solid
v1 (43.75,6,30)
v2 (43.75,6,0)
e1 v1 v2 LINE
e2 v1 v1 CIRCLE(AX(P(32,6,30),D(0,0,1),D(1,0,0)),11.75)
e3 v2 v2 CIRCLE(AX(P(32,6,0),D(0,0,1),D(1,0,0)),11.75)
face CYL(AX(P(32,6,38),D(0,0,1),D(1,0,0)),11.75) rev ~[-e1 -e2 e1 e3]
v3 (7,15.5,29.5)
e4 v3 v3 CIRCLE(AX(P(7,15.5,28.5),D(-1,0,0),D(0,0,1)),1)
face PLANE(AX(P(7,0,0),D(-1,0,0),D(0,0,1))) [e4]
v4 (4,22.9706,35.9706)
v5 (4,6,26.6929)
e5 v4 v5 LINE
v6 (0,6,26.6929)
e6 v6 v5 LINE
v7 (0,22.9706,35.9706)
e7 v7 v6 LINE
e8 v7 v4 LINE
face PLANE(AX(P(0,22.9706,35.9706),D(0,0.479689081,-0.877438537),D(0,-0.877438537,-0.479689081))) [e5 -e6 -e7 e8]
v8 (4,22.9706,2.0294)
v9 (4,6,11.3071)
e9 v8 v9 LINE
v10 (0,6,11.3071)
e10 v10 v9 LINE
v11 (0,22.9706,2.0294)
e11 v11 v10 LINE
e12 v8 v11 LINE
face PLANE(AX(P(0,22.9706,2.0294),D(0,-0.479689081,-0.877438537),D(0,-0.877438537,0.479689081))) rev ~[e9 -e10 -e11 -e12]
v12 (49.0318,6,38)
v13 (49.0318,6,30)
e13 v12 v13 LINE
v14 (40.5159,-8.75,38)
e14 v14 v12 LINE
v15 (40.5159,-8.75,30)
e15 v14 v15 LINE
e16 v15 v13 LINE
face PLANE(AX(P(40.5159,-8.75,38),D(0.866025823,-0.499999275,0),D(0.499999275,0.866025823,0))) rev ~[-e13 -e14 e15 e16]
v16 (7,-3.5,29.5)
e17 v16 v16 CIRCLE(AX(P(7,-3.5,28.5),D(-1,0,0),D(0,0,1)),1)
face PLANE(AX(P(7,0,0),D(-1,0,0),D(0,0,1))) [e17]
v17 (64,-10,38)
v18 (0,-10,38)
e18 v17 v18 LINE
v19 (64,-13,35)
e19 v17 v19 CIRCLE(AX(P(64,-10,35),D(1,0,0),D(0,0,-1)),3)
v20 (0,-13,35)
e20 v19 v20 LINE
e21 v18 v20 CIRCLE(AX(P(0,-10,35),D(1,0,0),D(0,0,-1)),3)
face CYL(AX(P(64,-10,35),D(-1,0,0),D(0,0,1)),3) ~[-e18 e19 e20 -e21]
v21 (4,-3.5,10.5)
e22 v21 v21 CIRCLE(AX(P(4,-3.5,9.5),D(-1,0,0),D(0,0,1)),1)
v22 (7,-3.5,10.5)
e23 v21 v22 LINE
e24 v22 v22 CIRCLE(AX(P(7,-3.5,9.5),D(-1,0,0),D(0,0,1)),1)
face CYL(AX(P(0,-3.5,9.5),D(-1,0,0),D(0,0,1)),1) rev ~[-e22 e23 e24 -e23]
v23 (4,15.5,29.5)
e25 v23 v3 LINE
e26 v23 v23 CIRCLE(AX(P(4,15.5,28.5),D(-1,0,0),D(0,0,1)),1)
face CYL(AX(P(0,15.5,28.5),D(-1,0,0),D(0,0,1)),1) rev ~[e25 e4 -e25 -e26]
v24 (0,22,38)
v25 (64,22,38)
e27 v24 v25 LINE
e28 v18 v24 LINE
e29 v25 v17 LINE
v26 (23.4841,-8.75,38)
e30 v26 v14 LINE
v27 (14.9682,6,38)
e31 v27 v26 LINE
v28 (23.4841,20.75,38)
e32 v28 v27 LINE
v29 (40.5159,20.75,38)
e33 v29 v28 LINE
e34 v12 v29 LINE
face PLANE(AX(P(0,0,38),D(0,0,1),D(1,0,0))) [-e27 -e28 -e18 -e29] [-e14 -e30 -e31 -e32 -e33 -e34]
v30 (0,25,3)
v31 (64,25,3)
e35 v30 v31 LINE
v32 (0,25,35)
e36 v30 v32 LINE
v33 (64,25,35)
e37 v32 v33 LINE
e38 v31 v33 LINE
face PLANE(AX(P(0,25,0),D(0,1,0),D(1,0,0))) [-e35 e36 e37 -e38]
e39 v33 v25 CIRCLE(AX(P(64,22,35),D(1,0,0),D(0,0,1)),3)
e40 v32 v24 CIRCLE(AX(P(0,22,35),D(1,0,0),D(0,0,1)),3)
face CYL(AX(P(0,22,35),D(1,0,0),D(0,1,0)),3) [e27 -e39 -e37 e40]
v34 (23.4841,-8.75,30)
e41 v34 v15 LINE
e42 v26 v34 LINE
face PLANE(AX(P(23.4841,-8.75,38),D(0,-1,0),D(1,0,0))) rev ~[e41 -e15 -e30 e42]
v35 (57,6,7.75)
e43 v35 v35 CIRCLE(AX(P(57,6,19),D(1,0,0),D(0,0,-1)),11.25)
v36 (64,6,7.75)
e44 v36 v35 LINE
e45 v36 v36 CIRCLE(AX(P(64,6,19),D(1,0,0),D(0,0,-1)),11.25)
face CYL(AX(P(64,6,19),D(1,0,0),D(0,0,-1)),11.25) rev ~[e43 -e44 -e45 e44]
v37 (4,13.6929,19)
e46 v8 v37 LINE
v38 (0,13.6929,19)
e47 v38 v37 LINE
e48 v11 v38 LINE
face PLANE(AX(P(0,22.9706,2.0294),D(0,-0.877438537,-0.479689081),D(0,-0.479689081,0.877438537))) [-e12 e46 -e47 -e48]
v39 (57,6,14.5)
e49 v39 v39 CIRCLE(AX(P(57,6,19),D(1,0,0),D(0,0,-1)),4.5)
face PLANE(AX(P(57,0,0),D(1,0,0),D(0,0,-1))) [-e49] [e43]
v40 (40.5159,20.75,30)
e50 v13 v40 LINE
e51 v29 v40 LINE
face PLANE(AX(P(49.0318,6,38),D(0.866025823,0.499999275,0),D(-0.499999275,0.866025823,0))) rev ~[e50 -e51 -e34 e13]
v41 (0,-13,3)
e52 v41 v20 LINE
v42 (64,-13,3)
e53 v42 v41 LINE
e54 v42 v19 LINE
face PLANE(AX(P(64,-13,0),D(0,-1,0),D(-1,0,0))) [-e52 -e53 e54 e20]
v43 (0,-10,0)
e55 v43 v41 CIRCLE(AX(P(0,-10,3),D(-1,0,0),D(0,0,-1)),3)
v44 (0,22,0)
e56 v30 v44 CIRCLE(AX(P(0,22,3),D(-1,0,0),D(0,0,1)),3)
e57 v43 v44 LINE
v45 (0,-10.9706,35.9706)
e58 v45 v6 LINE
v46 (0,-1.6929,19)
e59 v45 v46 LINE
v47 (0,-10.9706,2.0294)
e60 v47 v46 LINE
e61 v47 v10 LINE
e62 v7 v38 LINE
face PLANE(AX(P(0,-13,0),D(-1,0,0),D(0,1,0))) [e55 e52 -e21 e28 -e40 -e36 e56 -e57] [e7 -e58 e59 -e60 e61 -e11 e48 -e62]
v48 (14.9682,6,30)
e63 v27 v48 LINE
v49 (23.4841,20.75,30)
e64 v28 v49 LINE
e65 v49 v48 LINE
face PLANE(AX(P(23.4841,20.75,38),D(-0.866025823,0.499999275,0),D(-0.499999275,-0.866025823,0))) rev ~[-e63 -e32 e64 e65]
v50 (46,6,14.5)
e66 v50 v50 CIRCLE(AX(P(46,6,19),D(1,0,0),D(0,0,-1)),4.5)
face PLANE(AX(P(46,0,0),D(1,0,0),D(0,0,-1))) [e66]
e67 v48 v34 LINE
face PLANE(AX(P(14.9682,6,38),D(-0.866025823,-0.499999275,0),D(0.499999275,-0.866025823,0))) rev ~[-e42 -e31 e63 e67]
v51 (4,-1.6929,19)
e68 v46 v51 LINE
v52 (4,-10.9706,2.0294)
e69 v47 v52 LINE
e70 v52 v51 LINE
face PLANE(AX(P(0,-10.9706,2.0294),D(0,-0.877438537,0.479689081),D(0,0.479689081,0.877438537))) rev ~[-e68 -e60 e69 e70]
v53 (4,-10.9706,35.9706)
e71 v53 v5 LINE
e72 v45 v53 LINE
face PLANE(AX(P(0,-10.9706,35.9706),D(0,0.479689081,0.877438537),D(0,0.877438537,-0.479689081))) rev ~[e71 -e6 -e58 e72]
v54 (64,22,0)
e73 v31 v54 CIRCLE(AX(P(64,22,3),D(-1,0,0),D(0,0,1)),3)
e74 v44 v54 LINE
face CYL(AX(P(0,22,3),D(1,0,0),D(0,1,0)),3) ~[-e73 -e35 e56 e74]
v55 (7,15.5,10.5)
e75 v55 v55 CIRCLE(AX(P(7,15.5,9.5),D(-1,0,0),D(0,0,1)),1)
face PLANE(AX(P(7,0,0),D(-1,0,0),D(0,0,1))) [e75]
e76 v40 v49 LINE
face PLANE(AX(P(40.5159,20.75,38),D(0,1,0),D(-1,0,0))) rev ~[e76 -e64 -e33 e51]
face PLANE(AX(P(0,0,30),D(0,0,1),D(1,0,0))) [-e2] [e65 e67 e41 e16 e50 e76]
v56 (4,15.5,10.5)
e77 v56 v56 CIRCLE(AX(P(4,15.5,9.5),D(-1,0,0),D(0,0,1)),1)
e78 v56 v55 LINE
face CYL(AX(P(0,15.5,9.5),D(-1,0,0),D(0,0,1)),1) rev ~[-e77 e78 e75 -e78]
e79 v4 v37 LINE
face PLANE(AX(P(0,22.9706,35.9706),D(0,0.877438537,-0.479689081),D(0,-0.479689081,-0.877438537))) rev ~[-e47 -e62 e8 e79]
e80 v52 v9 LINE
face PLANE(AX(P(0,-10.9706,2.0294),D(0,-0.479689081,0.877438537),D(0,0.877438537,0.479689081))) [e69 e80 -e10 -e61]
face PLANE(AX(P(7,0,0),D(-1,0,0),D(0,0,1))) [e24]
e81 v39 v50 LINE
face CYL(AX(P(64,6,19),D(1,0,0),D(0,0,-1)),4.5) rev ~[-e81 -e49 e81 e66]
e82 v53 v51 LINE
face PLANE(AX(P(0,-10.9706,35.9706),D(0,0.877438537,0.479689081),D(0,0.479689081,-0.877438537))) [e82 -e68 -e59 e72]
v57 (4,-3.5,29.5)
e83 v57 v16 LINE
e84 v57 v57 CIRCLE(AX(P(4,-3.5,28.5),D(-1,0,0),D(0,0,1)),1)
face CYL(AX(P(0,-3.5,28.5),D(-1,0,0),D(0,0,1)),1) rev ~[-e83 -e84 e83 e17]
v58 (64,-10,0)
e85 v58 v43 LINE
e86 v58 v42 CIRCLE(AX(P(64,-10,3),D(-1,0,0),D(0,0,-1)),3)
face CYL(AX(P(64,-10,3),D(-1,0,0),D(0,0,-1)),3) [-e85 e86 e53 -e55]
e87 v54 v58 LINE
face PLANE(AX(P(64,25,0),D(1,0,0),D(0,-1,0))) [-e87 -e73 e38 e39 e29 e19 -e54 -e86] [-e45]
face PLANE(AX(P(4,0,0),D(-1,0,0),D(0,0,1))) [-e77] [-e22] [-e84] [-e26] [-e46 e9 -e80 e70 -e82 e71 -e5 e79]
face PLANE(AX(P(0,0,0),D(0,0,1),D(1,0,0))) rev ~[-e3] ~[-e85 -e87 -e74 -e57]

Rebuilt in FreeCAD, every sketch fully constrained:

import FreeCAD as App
import Part
import Sketcher
from FreeCAD import Vector
Q = App.Units.Quantity


def edges_at(feature, points):
    """Names of the edges that pass closest to the given points."""
    edges = feature.Shape.Edges
    near = lambda p: min(range(len(edges)), key=lambda i: edges[i].distToShape(Part.Vertex(*p))[0])
    return sorted({f"Edge{near(p) + 1}" for p in points})

doc = App.newDocument("Part")
body = doc.addObject("PartDesign::Body", "Body")

# Sketch on XY plane
sketch1 = doc.addObject("Sketcher::SketchObject", "Sketch")
body.addObject(sketch1)
sketch1.AttachmentSupport = (doc.XY_Plane, [""])
sketch1.MapMode = "FlatFace"
sketch1.addGeometry(Part.LineSegment(Vector(64, 25, 0), Vector(0, 25, 0)), False)
sketch1.addGeometry(Part.LineSegment(Vector(0, 25, 0), Vector(0, -13, 0)), False)
sketch1.addGeometry(Part.LineSegment(Vector(0, -13, 0), Vector(64, -13, 0)), False)
sketch1.addGeometry(Part.LineSegment(Vector(64, -13, 0), Vector(64, 25, 0)), False)
sketch1.addConstraint(Sketcher.Constraint("Coincident", 0, 2, 1, 1))
sketch1.addConstraint(Sketcher.Constraint("Coincident", 1, 2, 2, 1))
sketch1.addConstraint(Sketcher.Constraint("Coincident", 2, 2, 3, 1))
sketch1.addConstraint(Sketcher.Constraint("Coincident", 3, 2, 0, 1))
sketch1.addConstraint(Sketcher.Constraint("Horizontal", 0))
sketch1.addConstraint(Sketcher.Constraint("Vertical", 1))
sketch1.addConstraint(Sketcher.Constraint("Horizontal", 2))
sketch1.addConstraint(Sketcher.Constraint("Vertical", 3))
sketch1.addConstraint(Sketcher.Constraint("PointOnObject", 0, 2, -2))
sketch1.addConstraint(Sketcher.Constraint("DistanceX", 0, 2, 0, 1, Q("64 mm")))
sketch1.addConstraint(Sketcher.Constraint("DistanceY", 1, 2, 1, 1, Q("38 mm")))
sketch1.addConstraint(Sketcher.Constraint("DistanceY", -1, 1, 0, 2, Q("25 mm")))
pad1 = doc.addObject("PartDesign::Pad", "Pad")
body.addObject(pad1)
pad1.Profile = sketch1
pad1.Length = 38

# Sketch on XY plane
sketch2 = doc.addObject("Sketcher::SketchObject", "Sketch001")
body.addObject(sketch2)
sketch2.AttachmentSupport = (doc.XY_Plane, [""])
sketch2.MapMode = "FlatFace"
sketch2.AttachmentOffset = App.Placement(Vector(0, 0, 38), App.Rotation())
sketch2.addGeometry(Part.LineSegment(Vector(49, 6, 0), Vector(41, 21, 0)), False)
sketch2.addGeometry(Part.LineSegment(Vector(41, 21, 0), Vector(23, 21, 0)), False)
sketch2.addGeometry(Part.LineSegment(Vector(23, 21, 0), Vector(15, 6, 0)), False)
sketch2.addGeometry(Part.LineSegment(Vector(15, 6, 0), Vector(23, -9, 0)), False)
sketch2.addGeometry(Part.LineSegment(Vector(23, -9, 0), Vector(41, -9, 0)), False)
sketch2.addGeometry(Part.LineSegment(Vector(41, -9, 0), Vector(49, 6, 0)), False)
sketch2.addConstraint(Sketcher.Constraint("Coincident", 0, 2, 1, 1))
sketch2.addConstraint(Sketcher.Constraint("Coincident", 1, 2, 2, 1))
sketch2.addConstraint(Sketcher.Constraint("Coincident", 2, 2, 3, 1))
sketch2.addConstraint(Sketcher.Constraint("Coincident", 3, 2, 4, 1))
sketch2.addConstraint(Sketcher.Constraint("Coincident", 4, 2, 5, 1))
sketch2.addConstraint(Sketcher.Constraint("Coincident", 5, 2, 0, 1))
sketch2.addConstraint(Sketcher.Constraint("Horizontal", 1))
sketch2.addConstraint(Sketcher.Constraint("Horizontal", 4))
sketch2.addConstraint(Sketcher.Constraint("Parallel", 0, 3))
sketch2.addConstraint(Sketcher.Constraint("Parallel", 2, 5))
sketch2.addConstraint(Sketcher.Constraint("Horizontal", 2, 2, 5, 2))
sketch2.addConstraint(Sketcher.Constraint("Vertical", 1, 2, 3, 2))
sketch2.addConstraint(Sketcher.Constraint("Vertical", 0, 2, 4, 2))
sketch2.addConstraint(Sketcher.Constraint("Angle", 0, Q("120 deg")))
sketch2.addConstraint(Sketcher.Constraint("DistanceY", 2, 2, 1, 2, Q("14.75 mm")))
sketch2.addConstraint(Sketcher.Constraint("DistanceY", -1, 1, 2, 2, Q("6 mm")))
sketch2.addConstraint(Sketcher.Constraint("DistanceX", 1, 2, 1, 1, Q("17.0318 mm")))
sketch2.addConstraint(Sketcher.Constraint("DistanceX", -1, 1, 0, 2, Q("40.516 mm")))
pocket1 = doc.addObject("PartDesign::Pocket", "Pocket")
body.addObject(pocket1)
pocket1.Profile = sketch2
pocket1.Length = 8

# Sketch on XY plane
sketch3 = doc.addObject("Sketcher::SketchObject", "Sketch002")
body.addObject(sketch3)
sketch3.AttachmentSupport = (doc.XY_Plane, [""])
sketch3.MapMode = "FlatFace"
sketch3.AttachmentOffset = App.Placement(Vector(0, 0, 38), App.Rotation())
sketch3.addGeometry(Part.Circle(Vector(32, 6, 0), Vector(0, 0, 1), 12), False)
sketch3.addConstraint(Sketcher.Constraint("Diameter", 0, Q("23.5 mm")))
sketch3.addConstraint(Sketcher.Constraint("DistanceX", -1, 1, 0, 3, Q("32 mm")))
sketch3.addConstraint(Sketcher.Constraint("DistanceY", -1, 1, 0, 3, Q("6 mm")))
pocket2 = doc.addObject("PartDesign::Pocket", "Pocket001")
body.addObject(pocket2)
pocket2.Profile = sketch3
pocket2.Length = 52

# Sketch on YZ plane
sketch4 = doc.addObject("Sketcher::SketchObject", "Sketch003")
body.addObject(sketch4)
sketch4.AttachmentSupport = (doc.YZ_Plane, [""])
sketch4.MapMode = "FlatFace"
sketch4.addGeometry(Part.LineSegment(Vector(14, 19, 0), Vector(23, 2, 0)), False)
sketch4.addGeometry(Part.LineSegment(Vector(23, 2, 0), Vector(6, 11, 0)), False)
sketch4.addGeometry(Part.LineSegment(Vector(6, 11, 0), Vector(-11, 2, 0)), False)
sketch4.addGeometry(Part.LineSegment(Vector(-11, 2, 0), Vector(-2, 19, 0)), False)
sketch4.addGeometry(Part.LineSegment(Vector(-2, 19, 0), Vector(-11, 36, 0)), False)
sketch4.addGeometry(Part.LineSegment(Vector(-11, 36, 0), Vector(6, 27, 0)), False)
sketch4.addGeometry(Part.LineSegment(Vector(6, 27, 0), Vector(23, 36, 0)), False)
sketch4.addGeometry(Part.LineSegment(Vector(23, 36, 0), Vector(14, 19, 0)), False)
sketch4.addConstraint(Sketcher.Constraint("Coincident", 0, 2, 1, 1))
sketch4.addConstraint(Sketcher.Constraint("Coincident", 1, 2, 2, 1))
sketch4.addConstraint(Sketcher.Constraint("Coincident", 2, 2, 3, 1))
sketch4.addConstraint(Sketcher.Constraint("Coincident", 3, 2, 4, 1))
sketch4.addConstraint(Sketcher.Constraint("Coincident", 4, 2, 5, 1))
sketch4.addConstraint(Sketcher.Constraint("Coincident", 5, 2, 6, 1))
sketch4.addConstraint(Sketcher.Constraint("Coincident", 6, 2, 7, 1))
sketch4.addConstraint(Sketcher.Constraint("Coincident", 7, 2, 0, 1))
sketch4.addConstraint(Sketcher.Constraint("Perpendicular", 0, 2))
sketch4.addConstraint(Sketcher.Constraint("Perpendicular", 1, 3))
sketch4.addConstraint(Sketcher.Constraint("Perpendicular", 2, 4))
sketch4.addConstraint(Sketcher.Constraint("Perpendicular", 3, 5))
sketch4.addConstraint(Sketcher.Constraint("Perpendicular", 4, 6))
sketch4.addConstraint(Sketcher.Constraint("Perpendicular", 5, 7))
sketch4.addConstraint(Sketcher.Constraint("Horizontal", 0, 2, 2, 2))
sketch4.addConstraint(Sketcher.Constraint("Horizontal", 4, 2, 6, 2))
sketch4.addConstraint(Sketcher.Constraint("Horizontal", 3, 2, 7, 2))
sketch4.addConstraint(Sketcher.Constraint("Vertical", 2, 2, 4, 2))
sketch4.addConstraint(Sketcher.Constraint("Vertical", 1, 2, 5, 2))
sketch4.addConstraint(Sketcher.Constraint("Equal", 0, 1))
sketch4.addConstraint(Sketcher.Constraint("DistanceY", -1, 1, 3, 2, Q("19 mm")))
sketch4.addConstraint(Sketcher.Constraint("DistanceX", -1, 1, 1, 2, Q("6 mm")))
sketch4.addConstraint(Sketcher.Constraint("Distance", 0, Q("19.341 mm")))
sketch4.addConstraint(Sketcher.Constraint("DistanceY", -1, 1, 1, 2, Q("11.307 mm")))
pocket3 = doc.addObject("PartDesign::Pocket", "Pocket002")
body.addObject(pocket3)
pocket3.Profile = sketch4
pocket3.Length = 3
pocket3.Reversed = True
doc.recompute()

fillet = doc.addObject("PartDesign::Fillet", "Fillet")
body.addObject(fillet)
fillet.Base = (pocket3, edges_at(pocket3, [(32, 25, 0), (32, -13, 0)]))
fillet.Radius = 3
doc.recompute()

fillet2 = doc.addObject("PartDesign::Fillet", "Fillet001")
body.addObject(fillet2)
fillet2.Base = (fillet, edges_at(fillet, [(32, 25, 38), (32, -13, 38)]))
fillet2.Radius = 3

# Sketch on YZ plane
sketch5 = doc.addObject("Sketcher::SketchObject", "Sketch004")
body.addObject(sketch5)
sketch5.AttachmentSupport = (doc.YZ_Plane, [""])
sketch5.MapMode = "FlatFace"
sketch5.AttachmentOffset = App.Placement(Vector(0, 0, 64), App.Rotation())
sketch5.addGeometry(Part.Circle(Vector(6, 19, 0), Vector(0, 0, 1), 4.5), False)
sketch5.addConstraint(Sketcher.Constraint("Diameter", 0, Q("9 mm")))
sketch5.addConstraint(Sketcher.Constraint("DistanceX", -1, 1, 0, 3, Q("6 mm")))
sketch5.addConstraint(Sketcher.Constraint("DistanceY", -1, 1, 0, 3, Q("19 mm")))
pocket4 = doc.addObject("PartDesign::Pocket", "Pocket003")
body.addObject(pocket4)
pocket4.Profile = sketch5
pocket4.Length = 18

# Sketch on YZ plane
sketch6 = doc.addObject("Sketcher::SketchObject", "Sketch005")
body.addObject(sketch6)
sketch6.AttachmentSupport = (doc.YZ_Plane, [""])
sketch6.MapMode = "FlatFace"
sketch6.AttachmentOffset = App.Placement(Vector(0, 0, 64), App.Rotation())
sketch6.addGeometry(Part.Circle(Vector(6, 19, 0), Vector(0, 0, 1), 11.2), False)
sketch6.addGeometry(Part.Circle(Vector(6, 19, 0), Vector(0, 0, 1), 4.5), False)
sketch6.addConstraint(Sketcher.Constraint("Coincident", 1, 3, 0, 3))
sketch6.addConstraint(Sketcher.Constraint("Diameter", 1, Q("9 mm")))
sketch6.addConstraint(Sketcher.Constraint("Diameter", 0, Q("22.5 mm")))
sketch6.addConstraint(Sketcher.Constraint("DistanceX", -1, 1, 0, 3, Q("6 mm")))
sketch6.addConstraint(Sketcher.Constraint("DistanceY", -1, 1, 0, 3, Q("19 mm")))
pocket5 = doc.addObject("PartDesign::Pocket", "Pocket004")
body.addObject(pocket5)
pocket5.Profile = sketch6
pocket5.Length = 7

# Sketch on YZ plane
sketch7 = doc.addObject("Sketcher::SketchObject", "Sketch006")
body.addObject(sketch7)
sketch7.AttachmentSupport = (doc.YZ_Plane, [""])
sketch7.MapMode = "FlatFace"
sketch7.addGeometry(Part.LineSegment(Vector(14, 19, 0), Vector(23, 2, 0)), False)
sketch7.addGeometry(Part.LineSegment(Vector(23, 2, 0), Vector(6, 11, 0)), False)
sketch7.addGeometry(Part.LineSegment(Vector(6, 11, 0), Vector(-11, 2, 0)), False)
sketch7.addGeometry(Part.LineSegment(Vector(-11, 2, 0), Vector(-2, 19, 0)), False)
sketch7.addGeometry(Part.LineSegment(Vector(-2, 19, 0), Vector(-11, 36, 0)), False)
sketch7.addGeometry(Part.LineSegment(Vector(-11, 36, 0), Vector(6, 27, 0)), False)
sketch7.addGeometry(Part.LineSegment(Vector(6, 27, 0), Vector(23, 36, 0)), False)
sketch7.addGeometry(Part.LineSegment(Vector(23, 36, 0), Vector(14, 19, 0)), False)
sketch7.addConstraint(Sketcher.Constraint("Coincident", 0, 2, 1, 1))
sketch7.addConstraint(Sketcher.Constraint("Coincident", 1, 2, 2, 1))
sketch7.addConstraint(Sketcher.Constraint("Coincident", 2, 2, 3, 1))
sketch7.addConstraint(Sketcher.Constraint("Coincident", 3, 2, 4, 1))
sketch7.addConstraint(Sketcher.Constraint("Coincident", 4, 2, 5, 1))
sketch7.addConstraint(Sketcher.Constraint("Coincident", 5, 2, 6, 1))
sketch7.addConstraint(Sketcher.Constraint("Coincident", 6, 2, 7, 1))
sketch7.addConstraint(Sketcher.Constraint("Coincident", 7, 2, 0, 1))
sketch7.addConstraint(Sketcher.Constraint("Perpendicular", 0, 2))
sketch7.addConstraint(Sketcher.Constraint("Perpendicular", 1, 3))
sketch7.addConstraint(Sketcher.Constraint("Perpendicular", 2, 4))
sketch7.addConstraint(Sketcher.Constraint("Perpendicular", 3, 5))
sketch7.addConstraint(Sketcher.Constraint("Perpendicular", 4, 6))
sketch7.addConstraint(Sketcher.Constraint("Perpendicular", 5, 7))
sketch7.addConstraint(Sketcher.Constraint("Horizontal", 0, 2, 2, 2))
sketch7.addConstraint(Sketcher.Constraint("Horizontal", 4, 2, 6, 2))
sketch7.addConstraint(Sketcher.Constraint("Horizontal", 3, 2, 7, 2))
sketch7.addConstraint(Sketcher.Constraint("Vertical", 2, 2, 4, 2))
sketch7.addConstraint(Sketcher.Constraint("Vertical", 1, 2, 5, 2))
sketch7.addConstraint(Sketcher.Constraint("Equal", 0, 1))
sketch7.addConstraint(Sketcher.Constraint("DistanceY", -1, 1, 3, 2, Q("19 mm")))
sketch7.addConstraint(Sketcher.Constraint("DistanceX", -1, 1, 1, 2, Q("6 mm")))
sketch7.addConstraint(Sketcher.Constraint("Distance", 0, Q("19.341 mm")))
sketch7.addConstraint(Sketcher.Constraint("DistanceY", -1, 1, 1, 2, Q("11.307 mm")))
pocket6 = doc.addObject("PartDesign::Pocket", "Pocket005")
body.addObject(pocket6)
pocket6.Profile = sketch7
pocket6.Length = 4
pocket6.Reversed = True

# Sketch on YZ plane
sketch8 = doc.addObject("Sketcher::SketchObject", "Sketch007")
body.addObject(sketch8)
sketch8.AttachmentSupport = (doc.YZ_Plane, [""])
sketch8.MapMode = "FlatFace"
sketch8.addGeometry(Part.Circle(Vector(15.5, 9.5, 0), Vector(0, 0, 1), 1), False)
sketch8.addGeometry(Part.Circle(Vector(15.5, 28.5, 0), Vector(0, 0, 1), 1), False)
sketch8.addGeometry(Part.Circle(Vector(-3.5, 28.5, 0), Vector(0, 0, 1), 1), False)
sketch8.addGeometry(Part.Circle(Vector(-3.5, 9.5, 0), Vector(0, 0, 1), 1), False)
sketch8.addConstraint(Sketcher.Constraint("Equal", 0, 1))
sketch8.addConstraint(Sketcher.Constraint("Equal", 1, 2))
sketch8.addConstraint(Sketcher.Constraint("Equal", 2, 3))
sketch8.addConstraint(Sketcher.Constraint("Horizontal", 1, 3, 2, 3))
sketch8.addConstraint(Sketcher.Constraint("Horizontal", 0, 3, 3, 3))
sketch8.addConstraint(Sketcher.Constraint("Vertical", 0, 3, 1, 3))
sketch8.addConstraint(Sketcher.Constraint("Vertical", 2, 3, 3, 3))
sketch8.addConstraint(Sketcher.Constraint("Diameter", 0, Q("2 mm")))
sketch8.addConstraint(Sketcher.Constraint("DistanceY", 0, 3, 1, 3, Q("19 mm")))
sketch8.addConstraint(Sketcher.Constraint("DistanceX", 2, 3, 1, 3, Q("19 mm")))
sketch8.addConstraint(Sketcher.Constraint("DistanceX", -1, 1, 0, 3, Q("15.5 mm")))
sketch8.addConstraint(Sketcher.Constraint("DistanceY", -1, 1, 0, 3, Q("9.5 mm")))
pocket7 = doc.addObject("PartDesign::Pocket", "Pocket006")
body.addObject(pocket7)
pocket7.Profile = sketch8
pocket7.Length = 7
pocket7.Reversed = True

doc.recompute()
